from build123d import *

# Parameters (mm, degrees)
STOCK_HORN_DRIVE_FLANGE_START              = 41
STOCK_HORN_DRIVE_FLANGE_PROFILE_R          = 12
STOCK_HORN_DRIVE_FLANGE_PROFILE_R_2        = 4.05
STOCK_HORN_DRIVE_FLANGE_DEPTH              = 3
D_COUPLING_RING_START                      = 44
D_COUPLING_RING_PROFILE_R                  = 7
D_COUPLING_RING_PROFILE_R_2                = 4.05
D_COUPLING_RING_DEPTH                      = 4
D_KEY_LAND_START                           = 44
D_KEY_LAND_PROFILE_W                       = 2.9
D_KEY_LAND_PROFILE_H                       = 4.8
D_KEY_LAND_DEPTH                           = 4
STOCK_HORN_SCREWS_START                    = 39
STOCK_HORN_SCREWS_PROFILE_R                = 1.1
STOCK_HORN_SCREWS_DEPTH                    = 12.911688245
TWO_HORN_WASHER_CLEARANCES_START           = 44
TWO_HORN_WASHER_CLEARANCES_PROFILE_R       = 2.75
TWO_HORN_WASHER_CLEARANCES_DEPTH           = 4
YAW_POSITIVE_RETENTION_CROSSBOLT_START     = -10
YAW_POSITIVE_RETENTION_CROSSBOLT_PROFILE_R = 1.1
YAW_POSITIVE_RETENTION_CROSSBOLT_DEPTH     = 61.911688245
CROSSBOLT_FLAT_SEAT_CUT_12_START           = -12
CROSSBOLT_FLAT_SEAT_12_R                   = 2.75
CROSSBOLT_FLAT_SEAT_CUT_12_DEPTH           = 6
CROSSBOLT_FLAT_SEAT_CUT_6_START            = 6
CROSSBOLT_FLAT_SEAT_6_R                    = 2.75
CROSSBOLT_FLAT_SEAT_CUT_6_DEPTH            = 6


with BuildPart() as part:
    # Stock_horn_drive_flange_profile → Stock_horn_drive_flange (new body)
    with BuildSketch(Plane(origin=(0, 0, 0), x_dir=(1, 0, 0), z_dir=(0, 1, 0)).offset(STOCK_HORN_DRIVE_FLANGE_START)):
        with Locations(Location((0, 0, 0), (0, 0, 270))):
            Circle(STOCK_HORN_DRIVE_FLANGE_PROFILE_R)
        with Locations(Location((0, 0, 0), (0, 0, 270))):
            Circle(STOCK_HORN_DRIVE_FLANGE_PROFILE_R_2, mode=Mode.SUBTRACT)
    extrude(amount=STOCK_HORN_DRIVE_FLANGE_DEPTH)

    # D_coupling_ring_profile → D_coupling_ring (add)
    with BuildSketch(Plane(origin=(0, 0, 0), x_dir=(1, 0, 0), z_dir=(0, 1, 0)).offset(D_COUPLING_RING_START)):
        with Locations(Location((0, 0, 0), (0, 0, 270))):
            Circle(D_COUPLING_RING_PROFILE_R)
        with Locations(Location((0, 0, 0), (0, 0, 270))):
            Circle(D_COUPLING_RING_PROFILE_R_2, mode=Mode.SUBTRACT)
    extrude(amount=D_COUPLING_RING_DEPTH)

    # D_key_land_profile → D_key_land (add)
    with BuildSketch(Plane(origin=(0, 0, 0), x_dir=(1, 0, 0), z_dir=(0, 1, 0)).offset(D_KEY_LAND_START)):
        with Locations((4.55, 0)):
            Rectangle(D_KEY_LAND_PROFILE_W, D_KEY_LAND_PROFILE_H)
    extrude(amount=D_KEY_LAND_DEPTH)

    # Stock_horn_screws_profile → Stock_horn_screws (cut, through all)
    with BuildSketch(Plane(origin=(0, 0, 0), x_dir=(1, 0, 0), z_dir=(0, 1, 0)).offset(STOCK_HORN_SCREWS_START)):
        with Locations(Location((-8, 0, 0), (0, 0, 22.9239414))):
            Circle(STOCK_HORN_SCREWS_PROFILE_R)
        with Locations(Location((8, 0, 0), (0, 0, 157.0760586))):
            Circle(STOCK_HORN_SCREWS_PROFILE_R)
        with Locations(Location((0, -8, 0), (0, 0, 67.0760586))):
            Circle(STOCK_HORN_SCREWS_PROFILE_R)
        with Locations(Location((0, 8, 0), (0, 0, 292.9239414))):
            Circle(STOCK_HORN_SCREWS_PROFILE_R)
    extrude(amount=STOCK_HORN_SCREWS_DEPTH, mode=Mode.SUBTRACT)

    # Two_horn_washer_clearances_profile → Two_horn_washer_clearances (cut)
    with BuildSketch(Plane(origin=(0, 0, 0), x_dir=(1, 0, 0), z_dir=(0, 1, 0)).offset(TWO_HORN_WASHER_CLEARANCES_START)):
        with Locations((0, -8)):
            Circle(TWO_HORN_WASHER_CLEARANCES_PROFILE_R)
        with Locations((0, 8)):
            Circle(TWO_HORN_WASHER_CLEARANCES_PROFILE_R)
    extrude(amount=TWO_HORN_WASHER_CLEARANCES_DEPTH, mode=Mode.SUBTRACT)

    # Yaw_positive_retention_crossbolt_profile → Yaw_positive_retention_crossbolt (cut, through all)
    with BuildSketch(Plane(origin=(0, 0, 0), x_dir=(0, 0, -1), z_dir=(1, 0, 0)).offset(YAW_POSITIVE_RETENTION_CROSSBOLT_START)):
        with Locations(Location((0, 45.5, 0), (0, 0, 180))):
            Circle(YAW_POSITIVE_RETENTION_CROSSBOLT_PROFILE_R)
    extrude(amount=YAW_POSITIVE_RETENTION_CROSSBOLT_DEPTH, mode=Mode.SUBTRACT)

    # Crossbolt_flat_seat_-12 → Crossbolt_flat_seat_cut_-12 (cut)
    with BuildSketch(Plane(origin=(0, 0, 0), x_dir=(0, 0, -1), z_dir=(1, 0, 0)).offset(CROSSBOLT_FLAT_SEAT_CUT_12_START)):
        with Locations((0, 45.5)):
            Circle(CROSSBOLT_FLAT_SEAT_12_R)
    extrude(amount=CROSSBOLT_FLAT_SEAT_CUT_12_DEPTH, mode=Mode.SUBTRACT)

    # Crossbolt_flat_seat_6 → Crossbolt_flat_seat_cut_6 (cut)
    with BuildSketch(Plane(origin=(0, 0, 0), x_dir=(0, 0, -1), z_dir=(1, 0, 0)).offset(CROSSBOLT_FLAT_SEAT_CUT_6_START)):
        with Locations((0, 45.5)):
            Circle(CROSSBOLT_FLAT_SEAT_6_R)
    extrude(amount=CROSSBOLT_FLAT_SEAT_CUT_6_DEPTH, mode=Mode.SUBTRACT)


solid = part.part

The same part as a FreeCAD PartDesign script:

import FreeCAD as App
import Part
import Sketcher


def add_polygon(sketch, points):
    """Adds a closed chain of lines whose ends are joined by coincident constraints."""
    first, n = sketch.GeometryCount, len(points)
    for a, b in zip(points, points[1:] + points[:1]):
        sketch.addGeometry(Part.LineSegment(App.Vector(*a, 0), App.Vector(*b, 0)), False)
    for i in range(n):
        sketch.addConstraint(Sketcher.Constraint("Coincident", first + i, 2, first + (i + 1) % n, 1))

doc = App.newDocument("Part")
body = doc.addObject("PartDesign::Body", "Body")

# Sketch on XZ plane
sketch1 = body.newObject("Sketcher::SketchObject", "Sketch")
sketch1.AttachmentSupport = (doc.getObject("XZ_Plane"), [""])
sketch1.MapMode = "FlatFace"
sketch1.AttachmentOffset = App.Placement(App.Vector(0, 0, -41), App.Rotation())
sketch1.addGeometry([
    Part.Circle(App.Vector(0, 0, 0), App.Vector(0, 0, 1), 12),
    Part.Circle(App.Vector(0, 0, 0), App.Vector(0, 0, 1), 4),
], False)
sketch1.addConstraint([
    Sketcher.Constraint("Coincident", 0, 3, -1, 1),
    Sketcher.Constraint("Coincident", 1, 3, -1, 1),
    Sketcher.Constraint("Diameter", 0, 24.0),
    Sketcher.Constraint("Diameter", 1, 8.1),
])
pad1 = body.newObject("PartDesign::Pad", "Pad")
pad1.Profile = sketch1
pad1.Length = 3
pad1.Reversed = True

# Sketch on XZ plane
sketch2 = body.newObject("Sketcher::SketchObject", "Sketch001")
sketch2.AttachmentSupport = (doc.getObject("XZ_Plane"), [""])
sketch2.MapMode = "FlatFace"
sketch2.AttachmentOffset = App.Placement(App.Vector(0, 0, -44), App.Rotation())
sketch2.addGeometry([
    Part.Circle(App.Vector(0, 0, 0), App.Vector(0, 0, 1), 7),
    Part.Circle(App.Vector(0, 0, 0), App.Vector(0, 0, 1), 4),
], False)
sketch2.addConstraint([
    Sketcher.Constraint("Coincident", 0, 3, -1, 1),
    Sketcher.Constraint("Coincident", 1, 3, -1, 1),
    Sketcher.Constraint("Diameter", 0, 14.0),
    Sketcher.Constraint("Diameter", 1, 8.1),
])
pad2 = body.newObject("PartDesign::Pad", "Pad001")
pad2.Profile = sketch2
pad2.Length = 4
pad2.Reversed = True

# Sketch on XZ plane
sketch3 = body.newObject("Sketcher::SketchObject", "Sketch002")
sketch3.AttachmentSupport = (doc.getObject("XZ_Plane"), [""])
sketch3.MapMode = "FlatFace"
sketch3.AttachmentOffset = App.Placement(App.Vector(0, 0, -44), App.Rotation())
add_polygon(sketch3, [(3.1, -2.4), (3.1, 2.4), (6, 2.4), (6, -2.4)])  # lines 0-3
sketch3.addConstraint([
    Sketcher.Constraint("Vertical", 0),
    Sketcher.Constraint("Horizontal", 1),
    Sketcher.Constraint("Vertical", 2),
    Sketcher.Constraint("Horizontal", 3),
    Sketcher.Constraint("DistanceX", 1, 1, 1, 2, 2.9),
    Sketcher.Constraint("DistanceY", 0, 1, 0, 2, 4.8),
    Sketcher.Constraint("DistanceX", -1, 1, 1, 2, 6.0),
    Sketcher.Constraint("DistanceY", -1, 1, 0, 2, 2.4),
])
pad3 = body.newObject("PartDesign::Pad", "Pad002")
pad3.Profile = sketch3
pad3.Length = 4
pad3.Reversed = True

# Sketch on XZ plane
sketch4 = body.newObject("Sketcher::SketchObject", "Sketch003")
sketch4.AttachmentSupport = (doc.getObject("XZ_Plane"), [""])
sketch4.MapMode = "FlatFace"
sketch4.AttachmentOffset = App.Placement(App.Vector(0, 0, -39), App.Rotation())
sketch4.addGeometry([
    Part.Circle(App.Vector(-8, 0, 0), App.Vector(0, 0, 1), 1.1),
    Part.Circle(App.Vector(8, 0, 0), App.Vector(0, 0, 1), 1.1),
    Part.Circle(App.Vector(0, 8, 0), App.Vector(0, 0, 1), 1.1),
    Part.Circle(App.Vector(0, -8, 0), App.Vector(0, 0, 1), 1.1),
], False)
sketch4.addConstraint([
    Sketcher.Constraint("Equal", 0, 1),
    Sketcher.Constraint("Equal", 1, 2),
    Sketcher.Constraint("Equal", 2, 3),
    Sketcher.Constraint("Symmetric", 0, 3, 1, 3, -1, 1),
    Sketcher.Constraint("Symmetric", 2, 3, 3, 3, -1, 1),
    Sketcher.Constraint("PointOnObject", 0, 3, -1),
    Sketcher.Constraint("PointOnObject", 2, 3, -2),
    Sketcher.Constraint("Diameter", 0, 2.2),
    Sketcher.Constraint("DistanceX", 0, 3, -1, 1, 8.0),
    Sketcher.Constraint("DistanceY", -1, 1, 2, 3, 8.0),
])
pocket1 = body.newObject("PartDesign::Pocket", "Pocket")
pocket1.Profile = sketch4
pocket1.Type = "ThroughAll"

# Sketch on XZ plane
sketch5 = body.newObject("Sketcher::SketchObject", "Sketch004")
sketch5.AttachmentSupport = (doc.getObject("XZ_Plane"), [""])
sketch5.MapMode = "FlatFace"
sketch5.AttachmentOffset = App.Placement(App.Vector(0, 0, -44), App.Rotation())
sketch5.addGeometry([
    Part.Circle(App.Vector(0, 8, 0), App.Vector(0, 0, 1), 2.8),
    Part.Circle(App.Vector(0, -8, 0), App.Vector(0, 0, 1), 2.8),
], False)
sketch5.addConstraint([
    Sketcher.Constraint("Equal", 0, 1),
    Sketcher.Constraint("Symmetric", 0, 3, 1, 3, -1, 1),
    Sketcher.Constraint("PointOnObject", 0, 3, -2),
    Sketcher.Constraint("Diameter", 0, 5.5),
    Sketcher.Constraint("DistanceY", -1, 1, 0, 3, 8.0),
])
pocket2 = body.newObject("PartDesign::Pocket", "Pocket001")
pocket2.Profile = sketch5
pocket2.Length = 4

# Sketch on YZ plane
sketch6 = body.newObject("Sketcher::SketchObject", "Sketch005")
sketch6.AttachmentSupport = (doc.getObject("YZ_Plane"), [""])
sketch6.MapMode = "FlatFace"
sketch6.AttachmentOffset = App.Placement(App.Vector(0, 0, -10), App.Rotation())
sketch6.addGeometry(Part.Circle(App.Vector(45.5, 0, 0), App.Vector(0, 0, 1), 1.1), False)
sketch6.addConstraint([
    Sketcher.Constraint("PointOnObject", 0, 3, -1),
    Sketcher.Constraint("Diameter", 0, 2.2),
    Sketcher.Constraint("DistanceX", -1, 1, 0, 3, 45.5),
])
pocket3 = body.newObject("PartDesign::Pocket", "Pocket002")
pocket3.Profile = sketch6
pocket3.Type = "ThroughAll"
pocket3.Reversed = True

# Sketch on YZ plane
sketch7 = body.newObject("Sketcher::SketchObject", "Sketch006")
sketch7.AttachmentSupport = (doc.getObject("YZ_Plane"), [""])
sketch7.MapMode = "FlatFace"
sketch7.AttachmentOffset = App.Placement(App.Vector(0, 0, -12), App.Rotation())
sketch7.addGeometry(Part.Circle(App.Vector(45.5, 0, 0), App.Vector(0, 0, 1), 2.8), False)
sketch7.addConstraint([
    Sketcher.Constraint("PointOnObject", 0, 3, -1),
    Sketcher.Constraint("Diameter", 0, 5.5),
    Sketcher.Constraint("DistanceX", -1, 1, 0, 3, 45.5),
])
pocket4 = body.newObject("PartDesign::Pocket", "Pocket003")
pocket4.Profile = sketch7
pocket4.Length = 6
pocket4.Reversed = True

# Sketch on YZ plane
sketch8 = body.newObject("Sketcher::SketchObject", "Sketch007")
sketch8.AttachmentSupport = (doc.getObject("YZ_Plane"), [""])
sketch8.MapMode = "FlatFace"
sketch8.AttachmentOffset = App.Placement(App.Vector(0, 0, 6), App.Rotation())
sketch8.addGeometry(Part.Circle(App.Vector(45.5, 0, 0), App.Vector(0, 0, 1), 2.8), False)
sketch8.addConstraint([
    Sketcher.Constraint("PointOnObject", 0, 3, -1),
    Sketcher.Constraint("Diameter", 0, 5.5),
    Sketcher.Constraint("DistanceX", -1, 1, 0, 3, 45.5),
])
pocket5 = body.newObject("PartDesign::Pocket", "Pocket004")
pocket5.Profile = sketch8
pocket5.Length = 6
pocket5.Reversed = True

doc.recompute()
